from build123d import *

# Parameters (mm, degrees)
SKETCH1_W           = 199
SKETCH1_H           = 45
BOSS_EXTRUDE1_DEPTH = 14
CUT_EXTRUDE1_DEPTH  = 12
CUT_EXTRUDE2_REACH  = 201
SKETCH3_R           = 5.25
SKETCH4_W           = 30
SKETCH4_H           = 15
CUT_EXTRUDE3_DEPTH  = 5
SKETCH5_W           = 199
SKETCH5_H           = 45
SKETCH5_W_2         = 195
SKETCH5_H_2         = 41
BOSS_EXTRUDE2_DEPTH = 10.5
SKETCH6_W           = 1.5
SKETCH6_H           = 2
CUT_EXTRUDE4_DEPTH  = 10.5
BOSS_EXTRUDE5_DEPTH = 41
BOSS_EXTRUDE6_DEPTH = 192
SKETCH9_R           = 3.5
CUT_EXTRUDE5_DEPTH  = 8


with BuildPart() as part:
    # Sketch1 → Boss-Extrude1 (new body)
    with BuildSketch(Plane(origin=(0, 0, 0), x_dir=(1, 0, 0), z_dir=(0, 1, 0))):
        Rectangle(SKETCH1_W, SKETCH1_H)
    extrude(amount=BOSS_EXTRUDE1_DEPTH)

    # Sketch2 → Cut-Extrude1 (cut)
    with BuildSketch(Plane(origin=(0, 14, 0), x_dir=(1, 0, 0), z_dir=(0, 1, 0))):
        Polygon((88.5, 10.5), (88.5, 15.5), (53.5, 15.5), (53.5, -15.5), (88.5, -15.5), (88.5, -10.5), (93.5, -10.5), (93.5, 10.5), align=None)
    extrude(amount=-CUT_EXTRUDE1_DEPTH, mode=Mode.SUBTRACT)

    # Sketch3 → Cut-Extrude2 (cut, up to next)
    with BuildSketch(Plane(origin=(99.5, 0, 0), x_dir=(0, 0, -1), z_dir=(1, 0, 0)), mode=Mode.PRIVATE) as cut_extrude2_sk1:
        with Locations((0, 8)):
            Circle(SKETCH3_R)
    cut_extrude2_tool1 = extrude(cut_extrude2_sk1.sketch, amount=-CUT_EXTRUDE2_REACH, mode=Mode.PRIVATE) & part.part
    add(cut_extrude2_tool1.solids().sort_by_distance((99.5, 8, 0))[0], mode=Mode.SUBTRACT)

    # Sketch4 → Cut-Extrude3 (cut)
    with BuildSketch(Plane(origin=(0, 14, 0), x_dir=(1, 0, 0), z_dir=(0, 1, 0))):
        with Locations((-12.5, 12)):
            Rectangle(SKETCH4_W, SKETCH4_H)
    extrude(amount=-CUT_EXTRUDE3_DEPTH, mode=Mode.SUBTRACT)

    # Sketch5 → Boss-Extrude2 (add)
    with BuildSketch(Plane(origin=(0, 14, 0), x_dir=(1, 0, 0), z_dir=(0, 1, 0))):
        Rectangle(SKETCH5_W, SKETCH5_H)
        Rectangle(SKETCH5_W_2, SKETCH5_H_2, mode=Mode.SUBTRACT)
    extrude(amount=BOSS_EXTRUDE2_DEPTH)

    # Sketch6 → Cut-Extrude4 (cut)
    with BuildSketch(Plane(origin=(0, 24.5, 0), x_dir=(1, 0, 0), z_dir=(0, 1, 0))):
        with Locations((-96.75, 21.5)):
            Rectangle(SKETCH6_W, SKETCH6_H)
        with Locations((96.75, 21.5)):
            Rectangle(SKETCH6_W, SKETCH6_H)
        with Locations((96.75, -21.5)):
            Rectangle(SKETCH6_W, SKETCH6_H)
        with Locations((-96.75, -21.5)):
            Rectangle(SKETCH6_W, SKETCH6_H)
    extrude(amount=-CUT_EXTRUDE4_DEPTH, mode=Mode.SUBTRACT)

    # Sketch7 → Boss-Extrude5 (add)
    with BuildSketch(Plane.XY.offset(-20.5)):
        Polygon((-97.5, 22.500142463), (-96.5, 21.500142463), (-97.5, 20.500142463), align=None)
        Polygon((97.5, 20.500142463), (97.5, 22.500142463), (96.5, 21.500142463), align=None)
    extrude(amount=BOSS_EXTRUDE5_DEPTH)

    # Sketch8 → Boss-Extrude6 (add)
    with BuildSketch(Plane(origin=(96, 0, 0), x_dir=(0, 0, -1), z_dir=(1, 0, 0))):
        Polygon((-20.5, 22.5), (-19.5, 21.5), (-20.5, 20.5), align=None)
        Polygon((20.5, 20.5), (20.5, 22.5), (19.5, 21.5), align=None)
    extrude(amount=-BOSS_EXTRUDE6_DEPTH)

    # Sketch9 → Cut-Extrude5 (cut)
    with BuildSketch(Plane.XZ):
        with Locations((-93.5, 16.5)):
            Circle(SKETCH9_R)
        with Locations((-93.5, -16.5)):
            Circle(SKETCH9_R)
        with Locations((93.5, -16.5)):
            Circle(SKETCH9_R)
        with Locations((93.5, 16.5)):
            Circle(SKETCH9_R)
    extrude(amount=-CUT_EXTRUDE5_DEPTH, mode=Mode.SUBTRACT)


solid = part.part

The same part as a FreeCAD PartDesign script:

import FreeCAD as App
import Part
import Sketcher
from FreeCAD import Vector


def add_polygon(sketch, points):
    """Adds a closed chain of lines whose ends are joined by coincident constraints."""
    first, n = sketch.GeometryCount, len(points)
    for a, b in zip(points, points[1:] + points[:1]):
        sketch.addGeometry(Part.LineSegment(App.Vector(*a, 0), App.Vector(*b, 0)), False)
    for i in range(n):
        sketch.addConstraint(Sketcher.Constraint("Coincident", first + i, 2, first + (i + 1) % n, 1))

doc = App.newDocument("Part")
body = doc.addObject("PartDesign::Body", "Body")

# Sketch on XZ plane
sketch1 = body.newObject("Sketcher::SketchObject", "Sketch")
sketch1.AttachmentSupport = (doc.getObject("XZ_Plane"), [""])
sketch1.MapMode = "FlatFace"
add_polygon(sketch1, [(-100, -22), (-100, 22), (100, 22), (100, -22)])  # lines 0-3
sketch1.addConstraint(Sketcher.Constraint("Vertical", 0))
sketch1.addConstraint(Sketcher.Constraint("Horizontal", 1))
sketch1.addConstraint(Sketcher.Constraint("Vertical", 2))
sketch1.addConstraint(Sketcher.Constraint("Horizontal", 3))
sketch1.addConstraint(Sketcher.Constraint("Symmetric", 0, 2, 2, 2, -1, 1))
sketch1.addConstraint(Sketcher.Constraint("DistanceX", 1, 1, 1, 2, 199.0))
sketch1.addConstraint(Sketcher.Constraint("DistanceY", 0, 1, 0, 2, 45.0))
pad1 = body.newObject("PartDesign::Pad", "Pad")
pad1.Profile = sketch1
pad1.Length = 14
pad1.Reversed = True

# Sketch on XZ plane
sketch2 = body.newObject("Sketcher::SketchObject", "Sketch001")
sketch2.AttachmentSupport = (doc.getObject("XZ_Plane"), [""])
sketch2.MapMode = "FlatFace"
sketch2.AttachmentOffset = App.Placement(Vector(0, 0, -14), App.Rotation())
add_polygon(sketch2, [(88, -10), (88, -16), (54, -16), (54, 16), (88, 16), (88, 10), (94, 10), (94, -10)])  # lines 0-7
sketch2.addConstraint(Sketcher.Constraint("Vertical", 0))
sketch2.addConstraint(Sketcher.Constraint("Horizontal", 1))
sketch2.addConstraint(Sketcher.Constraint("Vertical", 2))
sketch2.addConstraint(Sketcher.Constraint("Horizontal", 3))
sketch2.addConstraint(Sketcher.Constraint("Vertical", 4))
sketch2.addConstraint(Sketcher.Constraint("Horizontal", 5))
sketch2.addConstraint(Sketcher.Constraint("Vertical", 6))
sketch2.addConstraint(Sketcher.Constraint("Horizontal", 7))
sketch2.addConstraint(Sketcher.Constraint("Symmetric", 0, 2, 3, 2, -1))
sketch2.addConstraint(Sketcher.Constraint("Equal", 7, 0))
sketch2.addConstraint(Sketcher.Constraint("Equal", 0, 4))
sketch2.addConstraint(Sketcher.Constraint("DistanceX", 1, 2, 1, 1, 35.0))
sketch2.addConstraint(Sketcher.Constraint("DistanceX", 5, 1, 5, 2, 5.0))
sketch2.addConstraint(Sketcher.Constraint("DistanceY", 2, 1, 2, 2, 31.0))
sketch2.addConstraint(Sketcher.Constraint("DistanceX", -1, 1, 0, 2, 88.5))
pocket1 = body.newObject("PartDesign::Pocket", "Pocket")
pocket1.Profile = sketch2
pocket1.Length = 12
pocket1.Reversed = True

# Sketch on YZ plane
sketch3 = body.newObject("Sketcher::SketchObject", "Sketch002")
sketch3.AttachmentSupport = (doc.getObject("YZ_Plane"), [""])
sketch3.MapMode = "FlatFace"
sketch3.AttachmentOffset = App.Placement(Vector(0, 0, 99.5), App.Rotation())
sketch3.addGeometry(Part.Circle(Vector(8, 0, 0), Vector(0, 0, 1), 5), False)
sketch3.addConstraint(Sketcher.Constraint("PointOnObject", 0, 3, -1))
sketch3.addConstraint(Sketcher.Constraint("Diameter", 0, 10.5))
sketch3.addConstraint(Sketcher.Constraint("DistanceX", -1, 1, 0, 3, 8.0))
pocket2 = body.newObject("PartDesign::Pocket", "Pocket001")
pocket2.Profile = sketch3
pocket2.Type = "UpToFirst"

# Sketch on XZ plane
sketch4 = body.newObject("Sketcher::SketchObject", "Sketch003")
sketch4.AttachmentSupport = (doc.getObject("XZ_Plane"), [""])
sketch4.MapMode = "FlatFace"
sketch4.AttachmentOffset = App.Placement(Vector(0, 0, -14), App.Rotation())
add_polygon(sketch4, [(-28, -20), (-28, -4), (2, -4), (2, -20)])  # lines 0-3
sketch4.addConstraint(Sketcher.Constraint("Vertical", 0))
sketch4.addConstraint(Sketcher.Constraint("Horizontal", 1))
sketch4.addConstraint(Sketcher.Constraint("Vertical", 2))
sketch4.addConstraint(Sketcher.Constraint("Horizontal", 3))
sketch4.addConstraint(Sketcher.Constraint("DistanceX", 1, 1, 1, 2, 30.0))
sketch4.addConstraint(Sketcher.Constraint("DistanceY", 0, 1, 0, 2, 15.0))
sketch4.addConstraint(Sketcher.Constraint("DistanceX", 0, 2, -1, 1, 27.5))
sketch4.addConstraint(Sketcher.Constraint("DistanceY", 0, 2, -1, 1, 4.5))
pocket3 = body.newObject("PartDesign::Pocket", "Pocket002")
pocket3.Profile = sketch4
pocket3.Length = 5
pocket3.Reversed = True

# Sketch on XZ plane
sketch5 = body.newObject("Sketcher::SketchObject", "Sketch004")
sketch5.AttachmentSupport = (doc.getObject("XZ_Plane"), [""])
sketch5.MapMode = "FlatFace"
sketch5.AttachmentOffset = App.Placement(Vector(0, 0, -14), App.Rotation())
add_polygon(sketch5, [(-100, -22), (-100, 22), (100, 22), (100, -22)])  # lines 0-3
add_polygon(sketch5, [(98, 20), (-98, 20), (-98, -20), (98, -20)])  # lines 4-7
sketch5.addConstraint(Sketcher.Constraint("Vertical", 0))
sketch5.addConstraint(Sketcher.Constraint("Horizontal", 1))
sketch5.addConstraint(Sketcher.Constraint("Vertical", 2))
sketch5.addConstraint(Sketcher.Constraint("Horizontal", 3))
sketch5.addConstraint(Sketcher.Constraint("Horizontal", 4))
sketch5.addConstraint(Sketcher.Constraint("Vertical", 5))
sketch5.addConstraint(Sketcher.Constraint("Horizontal", 6))
sketch5.addConstraint(Sketcher.Constraint("Vertical", 7))
sketch5.addConstraint(Sketcher.Constraint("Symmetric", 0, 2, 2, 2, -1, 1))
sketch5.addConstraint(Sketcher.Constraint("Symmetric", 4, 2, 6, 2, -1, 1))
sketch5.addConstraint(Sketcher.Constraint("DistanceX", 1, 1, 1, 2, 199.0))
sketch5.addConstraint(Sketcher.Constraint("DistanceX", 4, 2, 4, 1, 195.0))
sketch5.addConstraint(Sketcher.Constraint("DistanceY", 0, 1, 0, 2, 45.0))
sketch5.addConstraint(Sketcher.Constraint("DistanceY", 5, 2, 5, 1, 41.0))
pad2 = body.newObject("PartDesign::Pad", "Pad001")
pad2.Profile = sketch5
pad2.Length = 10.5
pad2.Reversed = True

# Sketch on XZ plane
sketch6 = body.newObject("Sketcher::SketchObject", "Sketch005")
sketch6.AttachmentSupport = (doc.getObject("XZ_Plane"), [""])
sketch6.MapMode = "FlatFace"
sketch6.AttachmentOffset = App.Placement(Vector(0, 0, -24.5), App.Rotation())
add_polygon(sketch6, [(-97.5, -22.5), (-97.5, -20.5), (-96, -20.5), (-96, -22.5)])  # lines 0-3
add_polygon(sketch6, [(96, -22.5), (96, -20.5), (97.5, -20.5), (97.5, -22.5)])  # lines 4-7
add_polygon(sketch6, [(96, 20.5), (96, 22.5), (97.5, 22.5), (97.5, 20.5)])  # lines 8-11
add_polygon(sketch6, [(-97.5, 20.5), (-97.5, 22.5), (-96, 22.5), (-96, 20.5)])  # lines 12-15
sketch6.addConstraint(Sketcher.Constraint("Vertical", 0))
sketch6.addConstraint(Sketcher.Constraint("Horizontal", 1))
sketch6.addConstraint(Sketcher.Constraint("Vertical", 2))
sketch6.addConstraint(Sketcher.Constraint("Horizontal", 3))
sketch6.addConstraint(Sketcher.Constraint("Vertical", 4))
sketch6.addConstraint(Sketcher.Constraint("Horizontal", 5))
sketch6.addConstraint(Sketcher.Constraint("Vertical", 6))
sketch6.addConstraint(Sketcher.Constraint("Horizontal", 7))
sketch6.addConstraint(Sketcher.Constraint("Vertical", 8))
sketch6.addConstraint(Sketcher.Constraint("Horizontal", 9))
sketch6.addConstraint(Sketcher.Constraint("Vertical", 10))
sketch6.addConstraint(Sketcher.Constraint("Horizontal", 11))
sketch6.addConstraint(Sketcher.Constraint("Vertical", 12))
sketch6.addConstraint(Sketcher.Constraint("Horizontal", 13))
sketch6.addConstraint(Sketcher.Constraint("Vertical", 14))
sketch6.addConstraint(Sketcher.Constraint("Horizontal", 15))
sketch6.addConstraint(Sketcher.Constraint("Symmetric", 2, 2, 8, 2, -1, 1))
sketch6.addConstraint(Sketcher.Constraint("Symmetric", 0, 2, 10, 2, -1, 1))
sketch6.addConstraint(Sketcher.Constraint("Symmetric", 6, 2, 12, 2, -1, 1))
sketch6.addConstraint(Sketcher.Constraint("Symmetric", 4, 2, 14, 2, -1, 1))
sketch6.addConstraint(Sketcher.Constraint("Symmetric", 1, 2, 4, 2, -2))
sketch6.addConstraint(Sketcher.Constraint("Symmetric", 3, 2, 6, 2, -2))
sketch6.addConstraint(Sketcher.Constraint("DistanceY", 0, 1, 0, 2, 2.0))
sketch6.addConstraint(Sketcher.Constraint("DistanceX", 1, 1, 1, 2, 1.5))
sketch6.addConstraint(Sketcher.Constraint("DistanceX", 1, 2, -1, 1, 96.0))
sketch6.addConstraint(Sketcher.Constraint("DistanceY", 4, 2, 8, 2, 43.0))
pocket4 = body.newObject("PartDesign::Pocket", "Pocket003")
pocket4.Profile = sketch6
pocket4.Length = 10.5
pocket4.Reversed = True

# Sketch on XY plane
sketch7 = body.newObject("Sketcher::SketchObject", "Sketch006")
sketch7.AttachmentSupport = (doc.getObject("XY_Plane"), [""])
sketch7.MapMode = "FlatFace"
sketch7.AttachmentOffset = App.Placement(Vector(0, 0, -20.5), App.Rotation())
add_polygon(sketch7, [(-96.5, 21.5), (-97.5, 22.5), (-97.5, 20.5)])  # lines 0-2
add_polygon(sketch7, [(97.5, 20.5), (97.5, 22.5), (96.5, 21.5)])  # lines 3-5
sketch7.addConstraint(Sketcher.Constraint("Vertical", 1))
sketch7.addConstraint(Sketcher.Constraint("Vertical", 3))
sketch7.addConstraint(Sketcher.Constraint("Symmetric", 0, 2, 3, 2, -2))
sketch7.addConstraint(Sketcher.Constraint("Symmetric", 2, 2, 4, 2, -2))
sketch7.addConstraint(Sketcher.Constraint("Perpendicular", 0, 2))
sketch7.addConstraint(Sketcher.Constraint("Parallel", 2, 4))
sketch7.addConstraint(Sketcher.Constraint("Perpendicular", 4, 5))
sketch7.addConstraint(Sketcher.Constraint("DistanceY", 1, 2, 1, 1, 2.0))
sketch7.addConstraint(Sketcher.Constraint("DistanceX", 2, 2, 3, 2, 194.0))
sketch7.addConstraint(Sketcher.Constraint("DistanceY", -1, 1, 0, 2, 22.500142))
pad3 = body.newObject("PartDesign::Pad", "Pad002")
pad3.Profile = sketch7
pad3.Length = 41

# Sketch on YZ plane
sketch8 = body.newObject("Sketcher::SketchObject", "Sketch007")
sketch8.AttachmentSupport = (doc.getObject("YZ_Plane"), [""])
sketch8.MapMode = "FlatFace"
sketch8.AttachmentOffset = App.Placement(Vector(0, 0, 96), App.Rotation())
add_polygon(sketch8, [(21.5, 19.5), (22.5, 20.5), (20.5, 20.5)])  # lines 0-2
add_polygon(sketch8, [(20.5, -20.5), (22.5, -20.5), (21.5, -19.5)])  # lines 3-5
sketch8.addConstraint(Sketcher.Constraint("Horizontal", 1))
sketch8.addConstraint(Sketcher.Constraint("Horizontal", 3))
sketch8.addConstraint(Sketcher.Constraint("Symmetric", 0, 2, 3, 2, -1))
sketch8.addConstraint(Sketcher.Constraint("Symmetric", 2, 2, 4, 2, -1))
sketch8.addConstraint(Sketcher.Constraint("Perpendicular", 0, 2))
sketch8.addConstraint(Sketcher.Constraint("Parallel", 2, 4))
sketch8.addConstraint(Sketcher.Constraint("Perpendicular", 4, 5))
sketch8.addConstraint(Sketcher.Constraint("DistanceX", 1, 2, 1, 1, 2.0))
sketch8.addConstraint(Sketcher.Constraint("DistanceY", 3, 2, 2, 2, 40.0))
sketch8.addConstraint(Sketcher.Constraint("DistanceX", -1, 1, 0, 2, 22.5))
pad4 = body.newObject("PartDesign::Pad", "Pad003")
pad4.Profile = sketch8
pad4.Length = 192
pad4.Reversed = True

# Sketch on XZ plane
sketch9 = body.newObject("Sketcher::SketchObject", "Sketch008")
sketch9.AttachmentSupport = (doc.getObject("XZ_Plane"), [""])
sketch9.MapMode = "FlatFace"
sketch9.addGeometry(Part.Circle(Vector(-93.5, 16.5, 0), Vector(0, 0, 1), 3.5), False)
sketch9.addGeometry(Part.Circle(Vector(-93.5, -16.5, 0), Vector(0, 0, 1), 3.5), False)
sketch9.addGeometry(Part.Circle(Vector(93.5, -16.5, 0), Vector(0, 0, 1), 3.5), False)
sketch9.addGeometry(Part.Circle(Vector(93.5, 16.5, 0), Vector(0, 0, 1), 3.5), False)
sketch9.addConstraint(Sketcher.Constraint("Equal", 0, 1))
sketch9.addConstraint(Sketcher.Constraint("Equal", 1, 2))
sketch9.addConstraint(Sketcher.Constraint("Equal", 2, 3))
sketch9.addConstraint(Sketcher.Constraint("Symmetric", 0, 3, 2, 3, -1, 1))
sketch9.addConstraint(Sketcher.Constraint("Symmetric", 1, 3, 3, 3, -1, 1))
sketch9.addConstraint(Sketcher.Constraint("Symmetric", 1, 3, 2, 3, -2))
sketch9.addConstraint(Sketcher.Constraint("Diameter", 0, 7.0))
sketch9.addConstraint(Sketcher.Constraint("DistanceY", 1, 3, 0, 3, 33.0))
sketch9.addConstraint(Sketcher.Constraint("DistanceX", 1, 3, 2, 3, 187.0))
pocket5 = body.newObject("PartDesign::Pocket", "Pocket004")
pocket5.Profile = sketch9
pocket5.Length = 8

doc.recompute()
